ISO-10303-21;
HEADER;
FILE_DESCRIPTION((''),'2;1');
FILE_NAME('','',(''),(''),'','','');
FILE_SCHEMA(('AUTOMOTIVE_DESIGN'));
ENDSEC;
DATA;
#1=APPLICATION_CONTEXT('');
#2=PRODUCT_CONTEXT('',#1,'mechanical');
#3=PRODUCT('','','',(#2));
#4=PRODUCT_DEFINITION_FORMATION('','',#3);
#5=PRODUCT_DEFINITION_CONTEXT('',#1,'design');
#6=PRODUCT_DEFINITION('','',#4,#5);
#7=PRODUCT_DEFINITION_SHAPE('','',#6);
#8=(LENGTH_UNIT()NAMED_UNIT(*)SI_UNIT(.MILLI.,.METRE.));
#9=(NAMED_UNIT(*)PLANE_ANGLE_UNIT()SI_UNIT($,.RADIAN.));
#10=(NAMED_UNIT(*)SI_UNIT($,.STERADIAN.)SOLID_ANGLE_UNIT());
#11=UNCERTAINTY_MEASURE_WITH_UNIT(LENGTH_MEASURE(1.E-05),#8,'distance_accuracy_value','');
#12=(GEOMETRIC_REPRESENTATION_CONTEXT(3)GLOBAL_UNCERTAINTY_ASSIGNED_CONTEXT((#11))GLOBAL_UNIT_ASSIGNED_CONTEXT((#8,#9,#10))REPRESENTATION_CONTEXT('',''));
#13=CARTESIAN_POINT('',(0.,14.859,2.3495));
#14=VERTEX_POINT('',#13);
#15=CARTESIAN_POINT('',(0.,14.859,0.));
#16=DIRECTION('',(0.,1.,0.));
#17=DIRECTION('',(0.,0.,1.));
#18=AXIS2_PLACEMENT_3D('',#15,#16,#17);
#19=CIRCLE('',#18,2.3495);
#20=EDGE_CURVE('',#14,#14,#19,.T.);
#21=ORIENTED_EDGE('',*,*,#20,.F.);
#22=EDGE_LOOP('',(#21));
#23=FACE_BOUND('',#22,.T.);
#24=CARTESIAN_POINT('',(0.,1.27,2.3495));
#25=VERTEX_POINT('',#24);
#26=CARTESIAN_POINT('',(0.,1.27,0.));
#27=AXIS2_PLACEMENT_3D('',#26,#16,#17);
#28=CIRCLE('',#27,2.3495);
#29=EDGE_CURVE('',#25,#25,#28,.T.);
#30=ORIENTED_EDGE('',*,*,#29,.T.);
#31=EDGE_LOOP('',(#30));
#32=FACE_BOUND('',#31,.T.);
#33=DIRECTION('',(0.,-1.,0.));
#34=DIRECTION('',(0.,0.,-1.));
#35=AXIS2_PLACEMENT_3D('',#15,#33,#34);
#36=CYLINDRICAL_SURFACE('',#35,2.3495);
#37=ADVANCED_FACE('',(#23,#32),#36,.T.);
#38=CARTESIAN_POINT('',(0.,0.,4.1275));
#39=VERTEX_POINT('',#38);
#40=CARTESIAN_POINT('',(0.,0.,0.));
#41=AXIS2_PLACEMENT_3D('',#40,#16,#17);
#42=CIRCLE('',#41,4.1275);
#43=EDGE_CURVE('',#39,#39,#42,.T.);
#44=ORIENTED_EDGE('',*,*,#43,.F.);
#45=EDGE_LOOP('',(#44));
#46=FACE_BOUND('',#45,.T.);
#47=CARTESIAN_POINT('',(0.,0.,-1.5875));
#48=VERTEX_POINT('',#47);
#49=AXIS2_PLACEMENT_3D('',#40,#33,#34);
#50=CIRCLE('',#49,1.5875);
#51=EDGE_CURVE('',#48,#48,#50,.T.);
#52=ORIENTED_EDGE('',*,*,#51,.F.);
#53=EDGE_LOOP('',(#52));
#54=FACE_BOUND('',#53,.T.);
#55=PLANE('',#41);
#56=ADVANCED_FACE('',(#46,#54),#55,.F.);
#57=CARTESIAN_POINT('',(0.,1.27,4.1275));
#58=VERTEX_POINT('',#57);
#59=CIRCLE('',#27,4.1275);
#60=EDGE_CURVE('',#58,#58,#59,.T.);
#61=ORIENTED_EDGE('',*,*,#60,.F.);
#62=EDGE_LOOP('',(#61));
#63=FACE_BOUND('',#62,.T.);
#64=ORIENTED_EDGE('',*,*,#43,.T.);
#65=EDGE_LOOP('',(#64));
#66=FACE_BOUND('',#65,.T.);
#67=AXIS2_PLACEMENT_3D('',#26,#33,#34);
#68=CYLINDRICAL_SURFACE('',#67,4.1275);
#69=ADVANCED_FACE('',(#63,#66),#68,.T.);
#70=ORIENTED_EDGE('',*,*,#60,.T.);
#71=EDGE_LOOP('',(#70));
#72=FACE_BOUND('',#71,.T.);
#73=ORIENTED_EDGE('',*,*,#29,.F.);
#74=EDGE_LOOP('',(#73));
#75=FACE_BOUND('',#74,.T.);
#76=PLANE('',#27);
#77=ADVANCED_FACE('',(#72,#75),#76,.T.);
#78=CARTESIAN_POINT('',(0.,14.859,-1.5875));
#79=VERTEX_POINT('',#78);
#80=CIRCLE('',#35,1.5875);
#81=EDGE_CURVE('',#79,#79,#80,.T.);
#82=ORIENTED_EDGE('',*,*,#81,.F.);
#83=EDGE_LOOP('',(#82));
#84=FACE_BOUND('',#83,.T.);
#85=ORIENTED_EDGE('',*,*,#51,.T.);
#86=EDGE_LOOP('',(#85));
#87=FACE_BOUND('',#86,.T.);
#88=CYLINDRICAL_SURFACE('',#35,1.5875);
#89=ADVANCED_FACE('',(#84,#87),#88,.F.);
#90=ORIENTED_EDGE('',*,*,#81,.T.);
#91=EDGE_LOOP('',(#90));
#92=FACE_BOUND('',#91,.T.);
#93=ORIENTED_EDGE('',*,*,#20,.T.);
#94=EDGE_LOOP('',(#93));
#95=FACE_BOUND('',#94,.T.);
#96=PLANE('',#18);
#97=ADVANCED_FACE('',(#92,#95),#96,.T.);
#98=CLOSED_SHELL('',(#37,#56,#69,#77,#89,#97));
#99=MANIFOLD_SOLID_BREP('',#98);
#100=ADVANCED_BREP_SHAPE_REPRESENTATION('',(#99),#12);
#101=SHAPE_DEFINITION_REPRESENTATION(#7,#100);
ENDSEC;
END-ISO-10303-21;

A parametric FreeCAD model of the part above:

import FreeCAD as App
import Part
import Sketcher
from FreeCAD import Vector
Q = App.Units.Quantity

doc = App.newDocument("Part")
body = doc.addObject("PartDesign::Body", "Body")

sketch1 = doc.addObject("Sketcher::SketchObject", "Sketch")
body.addObject(sketch1)
sketch1.AttachmentSupport = (doc.XZ_Plane, [""])
sketch1.MapMode = "FlatFace"
sketch1.addGeometry(Part.Circle(Vector(0, 0, 0), Vector(0, 0, 1), 4.1), False)
sketch1.addConstraint([
    Sketcher.Constraint("Coincident", 0, 3, -1, 1),
    Sketcher.Constraint("Diameter", 0, Q("0.325 in")),
])
pad1 = doc.addObject("PartDesign::Pad", "Pad")
body.addObject(pad1)
pad1.Profile = sketch1
pad1.Length = Q("0.05 in")
pad1.Reversed = True

sketch2 = doc.addObject("Sketcher::SketchObject", "Sketch001")
body.addObject(sketch2)
sketch2.AttachmentSupport = (doc.XZ_Plane, [""])
sketch2.MapMode = "FlatFace"
sketch2.AttachmentOffset = App.Placement(Vector(0, 0, -0.05 * 25.4), App.Rotation())
sketch2.addGeometry(Part.Circle(Vector(0, 0, 0), Vector(0, 0, 1), 2.3), False)
sketch2.addConstraint([
    Sketcher.Constraint("Coincident", 0, 3, -1, 1),
    Sketcher.Constraint("Diameter", 0, Q("0.185 in")),
])
pad2 = doc.addObject("PartDesign::Pad", "Pad001")
body.addObject(pad2)
pad2.Profile = sketch2
pad2.Length = Q("0.535 in")
pad2.Reversed = True

sketch3 = doc.addObject("Sketcher::SketchObject", "Sketch002")
body.addObject(sketch3)
sketch3.AttachmentSupport = (doc.XZ_Plane, [""])
sketch3.MapMode = "FlatFace"
sketch3.addGeometry(Part.Circle(Vector(0, 0, 0), Vector(0, 0, 1), 1.6), False)
sketch3.addConstraint([
    Sketcher.Constraint("Coincident", 0, 3, -1, 1),
    Sketcher.Constraint("Diameter", 0, Q("0.125 in")),
])
pocket1 = doc.addObject("PartDesign::Pocket", "Pocket")
body.addObject(pocket1)
pocket1.Profile = sketch3
pocket1.Type = "ThroughAll"

doc.recompute()
